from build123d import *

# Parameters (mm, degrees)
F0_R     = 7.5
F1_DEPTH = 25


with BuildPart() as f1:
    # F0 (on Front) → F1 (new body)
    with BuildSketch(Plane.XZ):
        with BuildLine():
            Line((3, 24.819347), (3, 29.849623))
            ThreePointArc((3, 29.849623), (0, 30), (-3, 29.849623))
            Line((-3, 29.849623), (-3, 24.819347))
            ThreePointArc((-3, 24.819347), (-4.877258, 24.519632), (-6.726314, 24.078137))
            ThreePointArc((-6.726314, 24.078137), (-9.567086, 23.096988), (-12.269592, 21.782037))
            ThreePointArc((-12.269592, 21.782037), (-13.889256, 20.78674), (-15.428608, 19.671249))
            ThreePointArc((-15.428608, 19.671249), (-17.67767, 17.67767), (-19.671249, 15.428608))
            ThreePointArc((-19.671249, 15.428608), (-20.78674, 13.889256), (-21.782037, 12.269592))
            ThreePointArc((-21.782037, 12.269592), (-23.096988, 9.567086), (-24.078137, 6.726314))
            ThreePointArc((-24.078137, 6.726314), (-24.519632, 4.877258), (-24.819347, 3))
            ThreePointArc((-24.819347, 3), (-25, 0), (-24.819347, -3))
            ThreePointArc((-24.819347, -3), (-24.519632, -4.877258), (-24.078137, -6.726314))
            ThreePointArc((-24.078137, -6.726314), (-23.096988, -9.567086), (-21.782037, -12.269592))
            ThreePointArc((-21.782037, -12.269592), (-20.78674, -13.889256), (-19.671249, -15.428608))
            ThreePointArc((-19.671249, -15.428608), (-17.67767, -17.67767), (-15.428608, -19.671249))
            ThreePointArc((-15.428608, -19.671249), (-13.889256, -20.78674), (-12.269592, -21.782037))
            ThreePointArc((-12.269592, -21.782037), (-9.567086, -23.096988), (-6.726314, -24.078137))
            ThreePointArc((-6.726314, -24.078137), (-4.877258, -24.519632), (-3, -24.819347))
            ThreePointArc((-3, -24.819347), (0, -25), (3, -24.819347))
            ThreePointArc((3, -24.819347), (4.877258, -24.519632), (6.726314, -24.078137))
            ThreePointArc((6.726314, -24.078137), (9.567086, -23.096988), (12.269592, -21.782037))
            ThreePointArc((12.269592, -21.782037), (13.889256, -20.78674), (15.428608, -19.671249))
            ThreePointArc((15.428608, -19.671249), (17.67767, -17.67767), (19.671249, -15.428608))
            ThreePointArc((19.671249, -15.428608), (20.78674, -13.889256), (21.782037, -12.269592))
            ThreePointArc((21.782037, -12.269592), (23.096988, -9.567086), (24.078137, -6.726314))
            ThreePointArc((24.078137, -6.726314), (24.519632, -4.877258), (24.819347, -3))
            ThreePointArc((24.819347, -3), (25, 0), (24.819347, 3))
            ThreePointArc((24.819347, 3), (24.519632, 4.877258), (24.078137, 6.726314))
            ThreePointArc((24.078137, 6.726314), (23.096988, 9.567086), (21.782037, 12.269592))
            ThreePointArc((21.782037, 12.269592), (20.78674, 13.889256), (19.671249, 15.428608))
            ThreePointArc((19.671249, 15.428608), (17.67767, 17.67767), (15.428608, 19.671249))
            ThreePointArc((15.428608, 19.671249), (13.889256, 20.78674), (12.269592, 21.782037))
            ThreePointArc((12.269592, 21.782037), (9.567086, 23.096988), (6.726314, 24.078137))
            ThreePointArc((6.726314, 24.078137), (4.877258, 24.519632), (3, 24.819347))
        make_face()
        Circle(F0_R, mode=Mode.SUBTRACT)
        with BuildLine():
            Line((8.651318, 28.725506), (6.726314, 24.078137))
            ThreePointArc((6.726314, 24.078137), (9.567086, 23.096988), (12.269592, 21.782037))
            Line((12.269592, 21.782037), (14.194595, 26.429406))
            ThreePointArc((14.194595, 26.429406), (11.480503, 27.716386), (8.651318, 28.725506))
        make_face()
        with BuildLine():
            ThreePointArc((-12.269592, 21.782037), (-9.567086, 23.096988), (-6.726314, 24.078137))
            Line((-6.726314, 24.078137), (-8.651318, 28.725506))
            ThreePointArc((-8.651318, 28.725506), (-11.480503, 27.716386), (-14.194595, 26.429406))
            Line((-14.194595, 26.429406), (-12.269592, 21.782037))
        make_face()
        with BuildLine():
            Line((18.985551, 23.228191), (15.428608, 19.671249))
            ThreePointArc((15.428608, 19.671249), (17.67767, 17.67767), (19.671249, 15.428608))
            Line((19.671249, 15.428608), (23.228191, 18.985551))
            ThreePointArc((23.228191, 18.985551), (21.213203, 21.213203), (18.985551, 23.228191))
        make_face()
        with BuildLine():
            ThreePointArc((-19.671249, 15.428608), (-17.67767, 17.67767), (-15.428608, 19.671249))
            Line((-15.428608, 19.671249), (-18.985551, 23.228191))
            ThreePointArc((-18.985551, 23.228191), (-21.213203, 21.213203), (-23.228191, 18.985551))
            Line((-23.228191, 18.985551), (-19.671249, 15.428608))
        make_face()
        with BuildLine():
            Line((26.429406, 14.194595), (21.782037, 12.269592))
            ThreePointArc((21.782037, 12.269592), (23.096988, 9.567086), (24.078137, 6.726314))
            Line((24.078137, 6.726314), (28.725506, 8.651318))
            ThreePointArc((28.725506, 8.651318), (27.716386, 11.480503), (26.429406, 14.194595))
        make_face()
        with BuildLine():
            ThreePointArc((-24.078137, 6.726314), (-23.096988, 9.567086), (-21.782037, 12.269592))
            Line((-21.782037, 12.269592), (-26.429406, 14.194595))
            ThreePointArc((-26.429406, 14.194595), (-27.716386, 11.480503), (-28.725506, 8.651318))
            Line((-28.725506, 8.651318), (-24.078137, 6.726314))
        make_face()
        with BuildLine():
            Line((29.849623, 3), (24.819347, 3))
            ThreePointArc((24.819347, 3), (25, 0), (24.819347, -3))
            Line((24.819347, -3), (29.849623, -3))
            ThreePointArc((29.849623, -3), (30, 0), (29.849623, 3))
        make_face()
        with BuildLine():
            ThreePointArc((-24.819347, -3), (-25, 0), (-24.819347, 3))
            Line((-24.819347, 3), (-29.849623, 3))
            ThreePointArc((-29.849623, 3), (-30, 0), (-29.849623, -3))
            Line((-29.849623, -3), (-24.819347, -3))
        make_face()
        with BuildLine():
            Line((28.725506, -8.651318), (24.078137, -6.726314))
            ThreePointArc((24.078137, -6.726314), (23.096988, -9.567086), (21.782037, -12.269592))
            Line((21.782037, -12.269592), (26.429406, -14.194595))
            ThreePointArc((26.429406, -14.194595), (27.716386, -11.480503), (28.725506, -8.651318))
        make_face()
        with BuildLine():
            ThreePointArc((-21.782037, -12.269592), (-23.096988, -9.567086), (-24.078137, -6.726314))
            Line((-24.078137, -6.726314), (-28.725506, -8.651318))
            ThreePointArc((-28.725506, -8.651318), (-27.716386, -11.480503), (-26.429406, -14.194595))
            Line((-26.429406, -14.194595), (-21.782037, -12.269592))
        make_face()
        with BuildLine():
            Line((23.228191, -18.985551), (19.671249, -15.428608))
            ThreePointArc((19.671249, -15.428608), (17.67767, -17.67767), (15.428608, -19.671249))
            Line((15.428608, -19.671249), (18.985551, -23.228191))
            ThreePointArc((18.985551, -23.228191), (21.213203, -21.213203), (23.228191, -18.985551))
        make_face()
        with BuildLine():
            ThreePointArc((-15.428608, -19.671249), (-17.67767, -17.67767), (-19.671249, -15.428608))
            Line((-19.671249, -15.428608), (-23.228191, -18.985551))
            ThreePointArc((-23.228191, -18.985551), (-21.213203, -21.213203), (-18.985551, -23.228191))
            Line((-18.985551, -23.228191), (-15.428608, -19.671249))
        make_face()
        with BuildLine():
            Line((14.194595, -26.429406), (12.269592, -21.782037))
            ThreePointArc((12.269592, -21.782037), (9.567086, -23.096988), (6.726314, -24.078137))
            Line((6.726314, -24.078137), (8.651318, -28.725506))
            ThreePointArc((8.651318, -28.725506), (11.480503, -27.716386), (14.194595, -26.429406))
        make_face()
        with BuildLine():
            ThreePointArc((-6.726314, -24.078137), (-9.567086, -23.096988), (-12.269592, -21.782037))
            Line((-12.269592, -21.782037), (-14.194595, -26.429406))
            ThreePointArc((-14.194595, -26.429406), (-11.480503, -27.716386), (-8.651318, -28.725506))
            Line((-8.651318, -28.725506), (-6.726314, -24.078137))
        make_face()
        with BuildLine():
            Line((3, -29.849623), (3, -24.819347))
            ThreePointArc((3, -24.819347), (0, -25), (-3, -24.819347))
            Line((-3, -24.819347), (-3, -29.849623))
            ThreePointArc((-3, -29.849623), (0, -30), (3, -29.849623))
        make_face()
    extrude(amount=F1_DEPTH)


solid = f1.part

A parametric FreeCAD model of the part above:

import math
import FreeCAD as App
import Part
import Sketcher

V = App.Vector
Q = App.Units.Quantity

doc = App.newDocument("Part")
body = doc.addObject("PartDesign::Body", "Body")

# Sketch on XZ plane
sketch1 = body.newObject("Sketcher::SketchObject", "Sketch")
sketch1.AttachmentSupport = (doc.getObject("XZ_Plane"), [""])
sketch1.MapMode = "FlatFace"
sketch1.addGeometry(Part.LineSegment(V(3, 24.819347, 0), V(3, 29.849623, 0)), False)
sketch1.addGeometry(Part.ArcOfCircle(Part.Circle(V(0, 0.000022, 0), V(0, 0, 1), 29.999978), math.radians(84.260825), math.radians(95.739175)), False)
sketch1.addGeometry(Part.LineSegment(V(-3, 29.849623, 0), V(-3, 24.819347, 0)), False)
sketch1.addGeometry(Part.ArcOfCircle(Part.Circle(V(-0.00002, 0.000106, 0), V(0, 0, 1), 24.999892), math.radians(96.892085), math.radians(105.607917)), False)
sketch1.addGeometry(Part.LineSegment(V(-6.726314, 24.078137, 0), V(-8.651318, 28.725506, 0)), False)
sketch1.addGeometry(Part.ArcOfCircle(Part.Circle(V(0.000012, -0.000036, 0), V(0, 0, 1), 30.000038), math.radians(106.760833), math.radians(118.239158)), False)
sketch1.addGeometry(Part.LineSegment(V(-14.194595, 26.429406, 0), V(-12.269592, 21.782037, 0)), False)
sketch1.addGeometry(Part.ArcOfCircle(Part.Circle(V(0.000046, -0.000059, 0), V(0, 0, 1), 25.000075), math.radians(119.392129), math.radians(128.107896)), False)
sketch1.addGeometry(Part.LineSegment(V(-15.428608, 19.671249, 0), V(-18.985551, 23.228191, 0)), False)
sketch1.addGeometry(Part.ArcOfCircle(Part.Circle(V(0.000096, -0.000096, 0), V(0, 0, 1), 30.000135), math.radians(129.260856), math.radians(140.739144)), False)
sketch1.addGeometry(Part.LineSegment(V(-23.228191, 18.985551, 0), V(-19.671249, 15.428608, 0)), False)
sketch1.addGeometry(Part.ArcOfCircle(Part.Circle(V(0.000059, -0.000046, 0), V(0, 0, 1), 25.000075), math.radians(141.892104), math.radians(150.607871)), False)
sketch1.addGeometry(Part.LineSegment(V(-21.782037, 12.269592, 0), V(-26.429406, 14.194595, 0)), False)
sketch1.addGeometry(Part.ArcOfCircle(Part.Circle(V(0.000036, -0.000012, 0), V(0, 0, 1), 30.000038), math.radians(151.760842), math.radians(163.239167)), False)
sketch1.addGeometry(Part.LineSegment(V(-28.725506, 8.651318, 0), V(-24.078137, 6.726314, 0)), False)
sketch1.addGeometry(Part.ArcOfCircle(Part.Circle(V(-0.000106, 0.00002, 0), V(0, 0, 1), 24.999892), math.radians(164.392083), math.radians(173.107915)), False)
sketch1.addGeometry(Part.LineSegment(V(-24.819347, 3, 0), V(-29.849623, 3, 0)), False)
sketch1.addGeometry(Part.ArcOfCircle(Part.Circle(V(-0.000022, 0, 0), V(0, 0, 1), 29.999978), math.radians(174.260825), math.radians(185.739175)), False)
sketch1.addGeometry(Part.LineSegment(V(-29.849623, -3, 0), V(-24.819347, -3, 0)), False)
sketch1.addGeometry(Part.ArcOfCircle(Part.Circle(V(-0.000106, -0.00002, 0), V(0, 0, 1), 24.999892), math.radians(-173.107915), math.radians(-164.392083)), False)
sketch1.addGeometry(Part.LineSegment(V(-24.078137, -6.726314, 0), V(-28.725506, -8.651318, 0)), False)
sketch1.addGeometry(Part.ArcOfCircle(Part.Circle(V(0.000036, 0.000012, 0), V(0, 0, 1), 30.000038), math.radians(-163.239167), math.radians(-151.760842)), False)
sketch1.addGeometry(Part.LineSegment(V(-26.429406, -14.194595, 0), V(-21.782037, -12.269592, 0)), False)
sketch1.addGeometry(Part.ArcOfCircle(Part.Circle(V(0.000059, 0.000046, 0), V(0, 0, 1), 25.000075), math.radians(-150.607871), math.radians(-141.892104)), False)
sketch1.addGeometry(Part.LineSegment(V(-19.671249, -15.428608, 0), V(-23.228191, -18.985551, 0)), False)
sketch1.addGeometry(Part.ArcOfCircle(Part.Circle(V(0.000096, 0.000096, 0), V(0, 0, 1), 30.000135), math.radians(-140.739144), math.radians(-129.260856)), False)
sketch1.addGeometry(Part.LineSegment(V(-18.985551, -23.228191, 0), V(-15.428608, -19.671249, 0)), False)
sketch1.addGeometry(Part.ArcOfCircle(Part.Circle(V(0.000046, 0.000059, 0), V(0, 0, 1), 25.000075), math.radians(-128.107896), math.radians(-119.392129)), False)
sketch1.addGeometry(Part.LineSegment(V(-12.269592, -21.782037, 0), V(-14.194595, -26.429406, 0)), False)
sketch1.addGeometry(Part.ArcOfCircle(Part.Circle(V(0.000012, 0.000036, 0), V(0, 0, 1), 30.000038), math.radians(-118.239158), math.radians(-106.760833)), False)
sketch1.addGeometry(Part.LineSegment(V(-8.651318, -28.725506, 0), V(-6.726314, -24.078137, 0)), False)
sketch1.addGeometry(Part.ArcOfCircle(Part.Circle(V(-0.00002, -0.000106, 0), V(0, 0, 1), 24.999892), math.radians(-105.607917), math.radians(-96.892085)), False)
sketch1.addGeometry(Part.LineSegment(V(-3, -24.819347, 0), V(-3, -29.849623, 0)), False)
sketch1.addGeometry(Part.ArcOfCircle(Part.Circle(V(0, -0.000022, 0), V(0, 0, 1), 29.999978), math.radians(-95.739175), math.radians(-84.260825)), False)
sketch1.addGeometry(Part.LineSegment(V(3, -29.849623, 0), V(3, -24.819347, 0)), False)
sketch1.addGeometry(Part.ArcOfCircle(Part.Circle(V(0.00002, -0.000106, 0), V(0, 0, 1), 24.999892), math.radians(-83.107915), math.radians(-74.392083)), False)
sketch1.addGeometry(Part.LineSegment(V(6.726314, -24.078137, 0), V(8.651318, -28.725506, 0)), False)
sketch1.addGeometry(Part.ArcOfCircle(Part.Circle(V(-0.000012, 0.000036, 0), V(0, 0, 1), 30.000038), math.radians(-73.239167), math.radians(-61.760842)), False)
sketch1.addGeometry(Part.LineSegment(V(14.194595, -26.429406, 0), V(12.269592, -21.782037, 0)), False)
sketch1.addGeometry(Part.ArcOfCircle(Part.Circle(V(-0.000046, 0.000059, 0), V(0, 0, 1), 25.000075), math.radians(-60.607871), math.radians(-51.892104)), False)
sketch1.addGeometry(Part.LineSegment(V(15.428608, -19.671249, 0), V(18.985551, -23.228191, 0)), False)
sketch1.addGeometry(Part.ArcOfCircle(Part.Circle(V(-0.000096, 0.000096, 0), V(0, 0, 1), 30.000135), math.radians(-50.739144), math.radians(-39.260856)), False)
sketch1.addGeometry(Part.LineSegment(V(23.228191, -18.985551, 0), V(19.671249, -15.428608, 0)), False)
sketch1.addGeometry(Part.ArcOfCircle(Part.Circle(V(-0.000059, 0.000046, 0), V(0, 0, 1), 25.000075), math.radians(-38.107896), math.radians(-29.392129)), False)
sketch1.addGeometry(Part.LineSegment(V(21.782037, -12.269592, 0), V(26.429406, -14.194595, 0)), False)
sketch1.addGeometry(Part.ArcOfCircle(Part.Circle(V(-0.000036, 0.000012, 0), V(0, 0, 1), 30.000038), math.radians(-28.239158), math.radians(-16.760833)), False)
sketch1.addGeometry(Part.LineSegment(V(28.725506, -8.651318, 0), V(24.078137, -6.726314, 0)), False)
sketch1.addGeometry(Part.ArcOfCircle(Part.Circle(V(0.000106, -0.00002, 0), V(0, 0, 1), 24.999892), math.radians(-15.607917), math.radians(-6.892085)), False)
sketch1.addGeometry(Part.LineSegment(V(24.819347, -3, 0), V(29.849623, -3, 0)), False)
sketch1.addGeometry(Part.ArcOfCircle(Part.Circle(V(0.000022, 0, 0), V(0, 0, 1), 29.999978), math.radians(-5.739175), math.radians(5.739175)), False)
sketch1.addGeometry(Part.LineSegment(V(29.849623, 3, 0), V(24.819347, 3, 0)), False)
sketch1.addGeometry(Part.ArcOfCircle(Part.Circle(V(0.000106, 0.00002, 0), V(0, 0, 1), 24.999892), math.radians(6.892085), math.radians(15.607917)), False)
sketch1.addGeometry(Part.LineSegment(V(24.078137, 6.726314, 0), V(28.725506, 8.651318, 0)), False)
sketch1.addGeometry(Part.ArcOfCircle(Part.Circle(V(-0.000036, -0.000012, 0), V(0, 0, 1), 30.000038), math.radians(16.760833), math.radians(28.239158)), False)
sketch1.addGeometry(Part.LineSegment(V(26.429406, 14.194595, 0), V(21.782037, 12.269592, 0)), False)
sketch1.addGeometry(Part.ArcOfCircle(Part.Circle(V(-0.000059, -0.000046, 0), V(0, 0, 1), 25.000075), math.radians(29.392129), math.radians(38.107896)), False)
sketch1.addGeometry(Part.LineSegment(V(19.671249, 15.428608, 0), V(23.228191, 18.985551, 0)), False)
sketch1.addGeometry(Part.ArcOfCircle(Part.Circle(V(-0.000096, -0.000096, 0), V(0, 0, 1), 30.000135), math.radians(39.260856), math.radians(50.739144)), False)
sketch1.addGeometry(Part.LineSegment(V(18.985551, 23.228191, 0), V(15.428608, 19.671249, 0)), False)
sketch1.addGeometry(Part.ArcOfCircle(Part.Circle(V(-0.000046, -0.000059, 0), V(0, 0, 1), 25.000075), math.radians(51.892104), math.radians(60.607871)), False)
sketch1.addGeometry(Part.LineSegment(V(12.269592, 21.782037, 0), V(14.194595, 26.429406, 0)), False)
sketch1.addGeometry(Part.ArcOfCircle(Part.Circle(V(-0.000012, -0.000036, 0), V(0, 0, 1), 30.000038), math.radians(61.760842), math.radians(73.239167)), False)
sketch1.addGeometry(Part.LineSegment(V(8.651318, 28.725506, 0), V(6.726314, 24.078137, 0)), False)
sketch1.addGeometry(Part.ArcOfCircle(Part.Circle(V(0.00002, 0.000106, 0), V(0, 0, 1), 24.999892), math.radians(74.392083), math.radians(83.107915)), False)
sketch1.addGeometry(Part.Circle(V(0, 0, 0), V(0, 0, 1), 7.5), False)
sketch1.addConstraint(Sketcher.Constraint("Coincident", 0, 2, 1, 1))
sketch1.addConstraint(Sketcher.Constraint("Coincident", 1, 2, 2, 1))
sketch1.addConstraint(Sketcher.Constraint("Coincident", 2, 2, 3, 1))
sketch1.addConstraint(Sketcher.Constraint("Coincident", 3, 2, 4, 1))
sketch1.addConstraint(Sketcher.Constraint("Coincident", 4, 2, 5, 1))
sketch1.addConstraint(Sketcher.Constraint("Coincident", 5, 2, 6, 1))
sketch1.addConstraint(Sketcher.Constraint("Coincident", 6, 2, 7, 1))
sketch1.addConstraint(Sketcher.Constraint("Coincident", 7, 2, 8, 1))
sketch1.addConstraint(Sketcher.Constraint("Coincident", 8, 2, 9, 1))
sketch1.addConstraint(Sketcher.Constraint("Coincident", 9, 2, 10, 1))
sketch1.addConstraint(Sketcher.Constraint("Coincident", 10, 2, 11, 1))
sketch1.addConstraint(Sketcher.Constraint("Coincident", 11, 2, 12, 1))
sketch1.addConstraint(Sketcher.Constraint("Coincident", 12, 2, 13, 1))
sketch1.addConstraint(Sketcher.Constraint("Coincident", 13, 2, 14, 1))
sketch1.addConstraint(Sketcher.Constraint("Coincident", 14, 2, 15, 1))
sketch1.addConstraint(Sketcher.Constraint("Coincident", 15, 2, 16, 1))
sketch1.addConstraint(Sketcher.Constraint("Coincident", 16, 2, 17, 1))
sketch1.addConstraint(Sketcher.Constraint("Coincident", 17, 2, 18, 1))
sketch1.addConstraint(Sketcher.Constraint("Coincident", 18, 2, 19, 1))
sketch1.addConstraint(Sketcher.Constraint("Coincident", 19, 2, 20, 1))
sketch1.addConstraint(Sketcher.Constraint("Coincident", 20, 2, 21, 1))
sketch1.addConstraint(Sketcher.Constraint("Coincident", 21, 2, 22, 1))
sketch1.addConstraint(Sketcher.Constraint("Coincident", 22, 2, 23, 1))
sketch1.addConstraint(Sketcher.Constraint("Coincident", 23, 2, 24, 1))
sketch1.addConstraint(Sketcher.Constraint("Coincident", 24, 2, 25, 1))
sketch1.addConstraint(Sketcher.Constraint("Coincident", 25, 2, 26, 1))
sketch1.addConstraint(Sketcher.Constraint("Coincident", 26, 2, 27, 1))
sketch1.addConstraint(Sketcher.Constraint("Coincident", 27, 2, 28, 1))
sketch1.addConstraint(Sketcher.Constraint("Coincident", 28, 2, 29, 1))
sketch1.addConstraint(Sketcher.Constraint("Coincident", 29, 2, 30, 1))
sketch1.addConstraint(Sketcher.Constraint("Coincident", 30, 2, 31, 1))
sketch1.addConstraint(Sketcher.Constraint("Coincident", 31, 2, 32, 1))
sketch1.addConstraint(Sketcher.Constraint("Coincident", 32, 2, 33, 1))
sketch1.addConstraint(Sketcher.Constraint("Coincident", 33, 2, 34, 1))
sketch1.addConstraint(Sketcher.Constraint("Coincident", 34, 2, 35, 1))
sketch1.addConstraint(Sketcher.Constraint("Coincident", 35, 2, 36, 1))
sketch1.addConstraint(Sketcher.Constraint("Coincident", 36, 2, 37, 1))
sketch1.addConstraint(Sketcher.Constraint("Coincident", 37, 2, 38, 1))
sketch1.addConstraint(Sketcher.Constraint("Coincident", 38, 2, 39, 1))
sketch1.addConstraint(Sketcher.Constraint("Coincident", 39, 2, 40, 1))
sketch1.addConstraint(Sketcher.Constraint("Coincident", 40, 2, 41, 1))
sketch1.addConstraint(Sketcher.Constraint("Coincident", 41, 2, 42, 1))
sketch1.addConstraint(Sketcher.Constraint("Coincident", 42, 2, 43, 1))
sketch1.addConstraint(Sketcher.Constraint("Coincident", 43, 2, 44, 1))
sketch1.addConstraint(Sketcher.Constraint("Coincident", 44, 2, 45, 1))
sketch1.addConstraint(Sketcher.Constraint("Coincident", 45, 2, 46, 1))
sketch1.addConstraint(Sketcher.Constraint("Coincident", 46, 2, 47, 1))
sketch1.addConstraint(Sketcher.Constraint("Coincident", 47, 2, 48, 1))
sketch1.addConstraint(Sketcher.Constraint("Coincident", 48, 2, 49, 1))
sketch1.addConstraint(Sketcher.Constraint("Coincident", 49, 2, 50, 1))
sketch1.addConstraint(Sketcher.Constraint("Coincident", 50, 2, 51, 1))
sketch1.addConstraint(Sketcher.Constraint("Coincident", 51, 2, 52, 1))
sketch1.addConstraint(Sketcher.Constraint("Coincident", 52, 2, 53, 1))
sketch1.addConstraint(Sketcher.Constraint("Coincident", 53, 2, 54, 1))
sketch1.addConstraint(Sketcher.Constraint("Coincident", 54, 2, 55, 1))
sketch1.addConstraint(Sketcher.Constraint("Coincident", 55, 2, 56, 1))
sketch1.addConstraint(Sketcher.Constraint("Coincident", 56, 2, 57, 1))
sketch1.addConstraint(Sketcher.Constraint("Coincident", 57, 2, 58, 1))
sketch1.addConstraint(Sketcher.Constraint("Coincident", 58, 2, 59, 1))
sketch1.addConstraint(Sketcher.Constraint("Coincident", 59, 2, 60, 1))
sketch1.addConstraint(Sketcher.Constraint("Coincident", 60, 2, 61, 1))
sketch1.addConstraint(Sketcher.Constraint("Coincident", 61, 2, 62, 1))
sketch1.addConstraint(Sketcher.Constraint("Coincident", 62, 2, 63, 1))
sketch1.addConstraint(Sketcher.Constraint("Coincident", 63, 2, 0, 1))
sketch1.addConstraint(Sketcher.Constraint("Vertical", 0))
sketch1.addConstraint(Sketcher.Constraint("Vertical", 2))
sketch1.addConstraint(Sketcher.Constraint("Horizontal", 16))
sketch1.addConstraint(Sketcher.Constraint("Horizontal", 18))
sketch1.addConstraint(Sketcher.Constraint("Vertical", 32))
sketch1.addConstraint(Sketcher.Constraint("Vertical", 34))
sketch1.addConstraint(Sketcher.Constraint("Horizontal", 48))
sketch1.addConstraint(Sketcher.Constraint("Horizontal", 50))
sketch1.addConstraint(Sketcher.Constraint("Coincident", 64, 3, -1, 1))
sketch1.addConstraint(Sketcher.Constraint("Equal", 7, 11))
sketch1.addConstraint(Sketcher.Constraint("Equal", 5, 13))
sketch1.addConstraint(Sketcher.Constraint("Equal", 3, 15))
sketch1.addConstraint(Sketcher.Constraint("Equal", 1, 17))
sketch1.addConstraint(Sketcher.Constraint("Equal", 15, 19))
sketch1.addConstraint(Sketcher.Constraint("Equal", 13, 21))
sketch1.addConstraint(Sketcher.Constraint("Equal", 11, 23))
sketch1.addConstraint(Sketcher.Constraint("Equal", 9, 25))
sketch1.addConstraint(Sketcher.Constraint("Equal", 23, 27))
sketch1.addConstraint(Sketcher.Constraint("Equal", 21, 29))
sketch1.addConstraint(Sketcher.Constraint("Equal", 19, 31))
sketch1.addConstraint(Sketcher.Constraint("Equal", 17, 33))
sketch1.addConstraint(Sketcher.Constraint("Equal", 31, 35))
sketch1.addConstraint(Sketcher.Constraint("Equal", 29, 37))
sketch1.addConstraint(Sketcher.Constraint("Equal", 27, 39))
sketch1.addConstraint(Sketcher.Constraint("Equal", 25, 41))
sketch1.addConstraint(Sketcher.Constraint("Equal", 39, 43))
sketch1.addConstraint(Sketcher.Constraint("Equal", 37, 45))
sketch1.addConstraint(Sketcher.Constraint("Equal", 35, 47))
sketch1.addConstraint(Sketcher.Constraint("Equal", 33, 49))
sketch1.addConstraint(Sketcher.Constraint("Equal", 47, 51))
sketch1.addConstraint(Sketcher.Constraint("Equal", 45, 53))
sketch1.addConstraint(Sketcher.Constraint("Equal", 43, 55))
sketch1.addConstraint(Sketcher.Constraint("Equal", 41, 57))
sketch1.addConstraint(Sketcher.Constraint("Equal", 55, 59))
sketch1.addConstraint(Sketcher.Constraint("Equal", 53, 61))
sketch1.addConstraint(Sketcher.Constraint("Equal", 51, 63))
sketch1.addConstraint(Sketcher.Constraint("Symmetric", 1, 3, 33, 3, -1, 1))
sketch1.addConstraint(Sketcher.Constraint("Symmetric", 3, 3, 35, 3, -1, 1))
sketch1.addConstraint(Sketcher.Constraint("Symmetric", 5, 3, 37, 3, -1, 1))
sketch1.addConstraint(Sketcher.Constraint("Symmetric", 7, 3, 39, 3, -1, 1))
sketch1.addConstraint(Sketcher.Constraint("Symmetric", 9, 3, 41, 3, -1, 1))
sketch1.addConstraint(Sketcher.Constraint("Symmetric", 11, 3, 43, 3, -1, 1))
sketch1.addConstraint(Sketcher.Constraint("Symmetric", 13, 3, 45, 3, -1, 1))
sketch1.addConstraint(Sketcher.Constraint("Symmetric", 15, 3, 47, 3, -1, 1))
sketch1.addConstraint(Sketcher.Constraint("Symmetric", 17, 3, 49, 3, -1, 1))
sketch1.addConstraint(Sketcher.Constraint("Symmetric", 19, 3, 51, 3, -1, 1))
sketch1.addConstraint(Sketcher.Constraint("Symmetric", 21, 3, 53, 3, -1, 1))
sketch1.addConstraint(Sketcher.Constraint("Symmetric", 23, 3, 55, 3, -1, 1))
sketch1.addConstraint(Sketcher.Constraint("Symmetric", 25, 3, 57, 3, -1, 1))
sketch1.addConstraint(Sketcher.Constraint("Symmetric", 27, 3, 59, 3, -1, 1))
sketch1.addConstraint(Sketcher.Constraint("Symmetric", 29, 3, 61, 3, -1, 1))
sketch1.addConstraint(Sketcher.Constraint("Symmetric", 31, 3, 63, 3, -1, 1))
sketch1.addConstraint(Sketcher.Constraint("Symmetric", 31, 3, 35, 3, -2))
sketch1.addConstraint(Sketcher.Constraint("Symmetric", 29, 3, 37, 3, -2))
sketch1.addConstraint(Sketcher.Constraint("Symmetric", 27, 3, 39, 3, -2))
sketch1.addConstraint(Sketcher.Constraint("Symmetric", 25, 3, 41, 3, -2))
sketch1.addConstraint(Sketcher.Constraint("Symmetric", 23, 3, 43, 3, -2))
sketch1.addConstraint(Sketcher.Constraint("Symmetric", 21, 3, 45, 3, -2))
sketch1.addConstraint(Sketcher.Constraint("Symmetric", 19, 3, 47, 3, -2))
sketch1.addConstraint(Sketcher.Constraint("Symmetric", 0, 2, 1, 2, -2))
sketch1.addConstraint(Sketcher.Constraint("Symmetric", 17, 2, 48, 2, -2))
sketch1.addConstraint(Sketcher.Constraint("Parallel", 4, 6))
sketch1.addConstraint(Sketcher.Constraint("Parallel", 8, 10))
sketch1.addConstraint(Sketcher.Constraint("Parallel", 12, 14))
sketch1.addConstraint(Sketcher.Constraint("Perpendicular", 6, 20))
sketch1.addConstraint(Sketcher.Constraint("Parallel", 20, 22))
sketch1.addConstraint(Sketcher.Constraint("Perpendicular", 10, 24))
sketch1.addConstraint(Sketcher.Constraint("Parallel", 24, 26))
sketch1.addConstraint(Sketcher.Constraint("Perpendicular", 14, 28))
sketch1.addConstraint(Sketcher.Constraint("Parallel", 28, 30))
sketch1.addConstraint(Sketcher.Constraint("Perpendicular", 22, 36))
sketch1.addConstraint(Sketcher.Constraint("Parallel", 36, 38))
sketch1.addConstraint(Sketcher.Constraint("Perpendicular", 26, 40))
sketch1.addConstraint(Sketcher.Constraint("Parallel", 40, 42))
sketch1.addConstraint(Sketcher.Constraint("Perpendicular", 30, 44))
sketch1.addConstraint(Sketcher.Constraint("Parallel", 44, 46))
sketch1.addConstraint(Sketcher.Constraint("Perpendicular", 38, 52))
sketch1.addConstraint(Sketcher.Constraint("Parallel", 52, 54))
sketch1.addConstraint(Sketcher.Constraint("Perpendicular", 42, 56))
sketch1.addConstraint(Sketcher.Constraint("Parallel", 56, 58))
sketch1.addConstraint(Sketcher.Constraint("Perpendicular", 46, 60))
sketch1.addConstraint(Sketcher.Constraint("Parallel", 60, 62))
sketch1.addConstraint(Sketcher.Constraint("Horizontal", 32, 2, 33, 2))
sketch1.addConstraint(Sketcher.Constraint("Horizontal", 30, 2, 35, 2))
sketch1.addConstraint(Sketcher.Constraint("Horizontal", 29, 2, 36, 2))
sketch1.addConstraint(Sketcher.Constraint("Horizontal", 28, 2, 37, 2))
sketch1.addConstraint(Sketcher.Constraint("Horizontal", 26, 2, 39, 2))
sketch1.addConstraint(Sketcher.Constraint("Horizontal", 25, 2, 40, 2))
sketch1.addConstraint(Sketcher.Constraint("Horizontal", 24, 2, 41, 2))
sketch1.addConstraint(Sketcher.Constraint("Horizontal", 22, 2, 43, 2))
sketch1.addConstraint(Sketcher.Constraint("Horizontal", 20, 2, 45, 2))
sketch1.addConstraint(Sketcher.Constraint("Horizontal", 16, 2, 49, 2))
sketch1.addConstraint(Sketcher.Constraint("Horizontal", 14, 2, 51, 2))
sketch1.addConstraint(Sketcher.Constraint("Horizontal", 12, 2, 53, 2))
sketch1.addConstraint(Sketcher.Constraint("Horizontal", 10, 2, 55, 2))
sketch1.addConstraint(Sketcher.Constraint("Horizontal", 8, 2, 57, 2))
sketch1.addConstraint(Sketcher.Constraint("Horizontal", 6, 2, 59, 2))
sketch1.addConstraint(Sketcher.Constraint("Horizontal", 4, 2, 61, 2))
sketch1.addConstraint(Sketcher.Constraint("Vertical", 16, 2, 17, 2))
sketch1.addConstraint(Sketcher.Constraint("Vertical", 14, 2, 19, 2))
sketch1.addConstraint(Sketcher.Constraint("Vertical", 12, 2, 21, 2))
sketch1.addConstraint(Sketcher.Constraint("Vertical", 10, 2, 23, 2))
sketch1.addConstraint(Sketcher.Constraint("Vertical", 8, 2, 25, 2))
sketch1.addConstraint(Sketcher.Constraint("Vertical", 6, 2, 27, 2))
sketch1.addConstraint(Sketcher.Constraint("Vertical", 4, 2, 29, 2))
sketch1.addConstraint(Sketcher.Constraint("Vertical", 2, 2, 31, 2))
sketch1.addConstraint(Sketcher.Constraint("Equal", 50, 0))
sketch1.addConstraint(Sketcher.Constraint("Equal", 4, 6))
sketch1.addConstraint(Sketcher.Constraint("Equal", 6, 8))
sketch1.addConstraint(Sketcher.Constraint("Equal", 8, 10))
sketch1.addConstraint(Sketcher.Constraint("Equal", 10, 12))
sketch1.addConstraint(Sketcher.Constraint("Equal", 12, 14))
sketch1.addConstraint(Sketcher.Constraint("Diameter", 64, Q("15 mm")))
sketch1.addConstraint(Sketcher.Constraint("DistanceX", -1, 1, 0, 2, Q("3 mm")))
sketch1.addConstraint(Sketcher.Constraint("DistanceY", -1, 1, 15, 2, Q("3 mm")))
sketch1.addConstraint(Sketcher.Constraint("Angle", 4, Q("112.500008 deg")))
sketch1.addConstraint(Sketcher.Constraint("Radius", 1, Q("29.999978 mm")))
sketch1.addConstraint(Sketcher.Constraint("Radius", 3, Q("24.999892 mm")))
sketch1.addConstraint(Sketcher.Constraint("Radius", 5, Q("30.000038 mm")))
sketch1.addConstraint(Sketcher.Constraint("Radius", 7, Q("25.000075 mm")))
sketch1.addConstraint(Sketcher.Constraint("Radius", 9, Q("30.000135 mm")))
sketch1.addConstraint(Sketcher.Constraint("DistanceX", 16, 2, 16, 1, Q("5.030276 mm")))
sketch1.addConstraint(Sketcher.Constraint("DistanceX", 6, 2, -1, 1, Q("12.269592 mm")))
sketch1.addConstraint(Sketcher.Constraint("DistanceY", -1, 1, 7, 2, Q("19.671249 mm")))
sketch1.addConstraint(Sketcher.Constraint("DistanceX", 8, 2, -1, 1, Q("18.985551 mm")))
sketch1.addConstraint(Sketcher.Constraint("DistanceY", -1, 1, 8, 2, Q("23.228191 mm")))
sketch1.addConstraint(Sketcher.Constraint("DistanceX", 9, 2, -1, 1, Q("23.228191 mm")))
sketch1.addConstraint(Sketcher.Constraint("DistanceY", -1, 1, 9, 2, Q("18.985551 mm")))
sketch1.addConstraint(Sketcher.Constraint("DistanceY", -1, 1, 11, 2, Q("12.269592 mm")))
sketch1.addConstraint(Sketcher.Constraint("DistanceY", -1, 1, 3, 3, Q("0.000106 mm")))
sketch1.addConstraint(Sketcher.Constraint("DistanceX", 15, 3, -1, 1, Q("0.000106 mm")))
sketch1.addConstraint(Sketcher.Constraint("DistanceY", -1, 1, 0, 2, Q("29.849623 mm")))
sketch1.addConstraint(Sketcher.Constraint("DistanceX", 3, 2, -1, 1, Q("6.726314 mm")))
sketch1.addConstraint(Sketcher.Constraint("DistanceY", -1, 1, 5, 2, Q("26.429406 mm")))
sketch1.addConstraint(Sketcher.Constraint("DistanceX", 11, 2, -1, 1, Q("21.782037 mm")))
sketch1.addConstraint(Sketcher.Constraint("DistanceX", 13, 2, -1, 1, Q("28.725506 mm")))
sketch1.addConstraint(Sketcher.Constraint("DistanceY", -1, 1, 13, 2, Q("8.651318 mm")))
pad1 = body.newObject("PartDesign::Pad", "Pad")
pad1.Profile = sketch1
pad1.Length = 25

doc.recompute()
